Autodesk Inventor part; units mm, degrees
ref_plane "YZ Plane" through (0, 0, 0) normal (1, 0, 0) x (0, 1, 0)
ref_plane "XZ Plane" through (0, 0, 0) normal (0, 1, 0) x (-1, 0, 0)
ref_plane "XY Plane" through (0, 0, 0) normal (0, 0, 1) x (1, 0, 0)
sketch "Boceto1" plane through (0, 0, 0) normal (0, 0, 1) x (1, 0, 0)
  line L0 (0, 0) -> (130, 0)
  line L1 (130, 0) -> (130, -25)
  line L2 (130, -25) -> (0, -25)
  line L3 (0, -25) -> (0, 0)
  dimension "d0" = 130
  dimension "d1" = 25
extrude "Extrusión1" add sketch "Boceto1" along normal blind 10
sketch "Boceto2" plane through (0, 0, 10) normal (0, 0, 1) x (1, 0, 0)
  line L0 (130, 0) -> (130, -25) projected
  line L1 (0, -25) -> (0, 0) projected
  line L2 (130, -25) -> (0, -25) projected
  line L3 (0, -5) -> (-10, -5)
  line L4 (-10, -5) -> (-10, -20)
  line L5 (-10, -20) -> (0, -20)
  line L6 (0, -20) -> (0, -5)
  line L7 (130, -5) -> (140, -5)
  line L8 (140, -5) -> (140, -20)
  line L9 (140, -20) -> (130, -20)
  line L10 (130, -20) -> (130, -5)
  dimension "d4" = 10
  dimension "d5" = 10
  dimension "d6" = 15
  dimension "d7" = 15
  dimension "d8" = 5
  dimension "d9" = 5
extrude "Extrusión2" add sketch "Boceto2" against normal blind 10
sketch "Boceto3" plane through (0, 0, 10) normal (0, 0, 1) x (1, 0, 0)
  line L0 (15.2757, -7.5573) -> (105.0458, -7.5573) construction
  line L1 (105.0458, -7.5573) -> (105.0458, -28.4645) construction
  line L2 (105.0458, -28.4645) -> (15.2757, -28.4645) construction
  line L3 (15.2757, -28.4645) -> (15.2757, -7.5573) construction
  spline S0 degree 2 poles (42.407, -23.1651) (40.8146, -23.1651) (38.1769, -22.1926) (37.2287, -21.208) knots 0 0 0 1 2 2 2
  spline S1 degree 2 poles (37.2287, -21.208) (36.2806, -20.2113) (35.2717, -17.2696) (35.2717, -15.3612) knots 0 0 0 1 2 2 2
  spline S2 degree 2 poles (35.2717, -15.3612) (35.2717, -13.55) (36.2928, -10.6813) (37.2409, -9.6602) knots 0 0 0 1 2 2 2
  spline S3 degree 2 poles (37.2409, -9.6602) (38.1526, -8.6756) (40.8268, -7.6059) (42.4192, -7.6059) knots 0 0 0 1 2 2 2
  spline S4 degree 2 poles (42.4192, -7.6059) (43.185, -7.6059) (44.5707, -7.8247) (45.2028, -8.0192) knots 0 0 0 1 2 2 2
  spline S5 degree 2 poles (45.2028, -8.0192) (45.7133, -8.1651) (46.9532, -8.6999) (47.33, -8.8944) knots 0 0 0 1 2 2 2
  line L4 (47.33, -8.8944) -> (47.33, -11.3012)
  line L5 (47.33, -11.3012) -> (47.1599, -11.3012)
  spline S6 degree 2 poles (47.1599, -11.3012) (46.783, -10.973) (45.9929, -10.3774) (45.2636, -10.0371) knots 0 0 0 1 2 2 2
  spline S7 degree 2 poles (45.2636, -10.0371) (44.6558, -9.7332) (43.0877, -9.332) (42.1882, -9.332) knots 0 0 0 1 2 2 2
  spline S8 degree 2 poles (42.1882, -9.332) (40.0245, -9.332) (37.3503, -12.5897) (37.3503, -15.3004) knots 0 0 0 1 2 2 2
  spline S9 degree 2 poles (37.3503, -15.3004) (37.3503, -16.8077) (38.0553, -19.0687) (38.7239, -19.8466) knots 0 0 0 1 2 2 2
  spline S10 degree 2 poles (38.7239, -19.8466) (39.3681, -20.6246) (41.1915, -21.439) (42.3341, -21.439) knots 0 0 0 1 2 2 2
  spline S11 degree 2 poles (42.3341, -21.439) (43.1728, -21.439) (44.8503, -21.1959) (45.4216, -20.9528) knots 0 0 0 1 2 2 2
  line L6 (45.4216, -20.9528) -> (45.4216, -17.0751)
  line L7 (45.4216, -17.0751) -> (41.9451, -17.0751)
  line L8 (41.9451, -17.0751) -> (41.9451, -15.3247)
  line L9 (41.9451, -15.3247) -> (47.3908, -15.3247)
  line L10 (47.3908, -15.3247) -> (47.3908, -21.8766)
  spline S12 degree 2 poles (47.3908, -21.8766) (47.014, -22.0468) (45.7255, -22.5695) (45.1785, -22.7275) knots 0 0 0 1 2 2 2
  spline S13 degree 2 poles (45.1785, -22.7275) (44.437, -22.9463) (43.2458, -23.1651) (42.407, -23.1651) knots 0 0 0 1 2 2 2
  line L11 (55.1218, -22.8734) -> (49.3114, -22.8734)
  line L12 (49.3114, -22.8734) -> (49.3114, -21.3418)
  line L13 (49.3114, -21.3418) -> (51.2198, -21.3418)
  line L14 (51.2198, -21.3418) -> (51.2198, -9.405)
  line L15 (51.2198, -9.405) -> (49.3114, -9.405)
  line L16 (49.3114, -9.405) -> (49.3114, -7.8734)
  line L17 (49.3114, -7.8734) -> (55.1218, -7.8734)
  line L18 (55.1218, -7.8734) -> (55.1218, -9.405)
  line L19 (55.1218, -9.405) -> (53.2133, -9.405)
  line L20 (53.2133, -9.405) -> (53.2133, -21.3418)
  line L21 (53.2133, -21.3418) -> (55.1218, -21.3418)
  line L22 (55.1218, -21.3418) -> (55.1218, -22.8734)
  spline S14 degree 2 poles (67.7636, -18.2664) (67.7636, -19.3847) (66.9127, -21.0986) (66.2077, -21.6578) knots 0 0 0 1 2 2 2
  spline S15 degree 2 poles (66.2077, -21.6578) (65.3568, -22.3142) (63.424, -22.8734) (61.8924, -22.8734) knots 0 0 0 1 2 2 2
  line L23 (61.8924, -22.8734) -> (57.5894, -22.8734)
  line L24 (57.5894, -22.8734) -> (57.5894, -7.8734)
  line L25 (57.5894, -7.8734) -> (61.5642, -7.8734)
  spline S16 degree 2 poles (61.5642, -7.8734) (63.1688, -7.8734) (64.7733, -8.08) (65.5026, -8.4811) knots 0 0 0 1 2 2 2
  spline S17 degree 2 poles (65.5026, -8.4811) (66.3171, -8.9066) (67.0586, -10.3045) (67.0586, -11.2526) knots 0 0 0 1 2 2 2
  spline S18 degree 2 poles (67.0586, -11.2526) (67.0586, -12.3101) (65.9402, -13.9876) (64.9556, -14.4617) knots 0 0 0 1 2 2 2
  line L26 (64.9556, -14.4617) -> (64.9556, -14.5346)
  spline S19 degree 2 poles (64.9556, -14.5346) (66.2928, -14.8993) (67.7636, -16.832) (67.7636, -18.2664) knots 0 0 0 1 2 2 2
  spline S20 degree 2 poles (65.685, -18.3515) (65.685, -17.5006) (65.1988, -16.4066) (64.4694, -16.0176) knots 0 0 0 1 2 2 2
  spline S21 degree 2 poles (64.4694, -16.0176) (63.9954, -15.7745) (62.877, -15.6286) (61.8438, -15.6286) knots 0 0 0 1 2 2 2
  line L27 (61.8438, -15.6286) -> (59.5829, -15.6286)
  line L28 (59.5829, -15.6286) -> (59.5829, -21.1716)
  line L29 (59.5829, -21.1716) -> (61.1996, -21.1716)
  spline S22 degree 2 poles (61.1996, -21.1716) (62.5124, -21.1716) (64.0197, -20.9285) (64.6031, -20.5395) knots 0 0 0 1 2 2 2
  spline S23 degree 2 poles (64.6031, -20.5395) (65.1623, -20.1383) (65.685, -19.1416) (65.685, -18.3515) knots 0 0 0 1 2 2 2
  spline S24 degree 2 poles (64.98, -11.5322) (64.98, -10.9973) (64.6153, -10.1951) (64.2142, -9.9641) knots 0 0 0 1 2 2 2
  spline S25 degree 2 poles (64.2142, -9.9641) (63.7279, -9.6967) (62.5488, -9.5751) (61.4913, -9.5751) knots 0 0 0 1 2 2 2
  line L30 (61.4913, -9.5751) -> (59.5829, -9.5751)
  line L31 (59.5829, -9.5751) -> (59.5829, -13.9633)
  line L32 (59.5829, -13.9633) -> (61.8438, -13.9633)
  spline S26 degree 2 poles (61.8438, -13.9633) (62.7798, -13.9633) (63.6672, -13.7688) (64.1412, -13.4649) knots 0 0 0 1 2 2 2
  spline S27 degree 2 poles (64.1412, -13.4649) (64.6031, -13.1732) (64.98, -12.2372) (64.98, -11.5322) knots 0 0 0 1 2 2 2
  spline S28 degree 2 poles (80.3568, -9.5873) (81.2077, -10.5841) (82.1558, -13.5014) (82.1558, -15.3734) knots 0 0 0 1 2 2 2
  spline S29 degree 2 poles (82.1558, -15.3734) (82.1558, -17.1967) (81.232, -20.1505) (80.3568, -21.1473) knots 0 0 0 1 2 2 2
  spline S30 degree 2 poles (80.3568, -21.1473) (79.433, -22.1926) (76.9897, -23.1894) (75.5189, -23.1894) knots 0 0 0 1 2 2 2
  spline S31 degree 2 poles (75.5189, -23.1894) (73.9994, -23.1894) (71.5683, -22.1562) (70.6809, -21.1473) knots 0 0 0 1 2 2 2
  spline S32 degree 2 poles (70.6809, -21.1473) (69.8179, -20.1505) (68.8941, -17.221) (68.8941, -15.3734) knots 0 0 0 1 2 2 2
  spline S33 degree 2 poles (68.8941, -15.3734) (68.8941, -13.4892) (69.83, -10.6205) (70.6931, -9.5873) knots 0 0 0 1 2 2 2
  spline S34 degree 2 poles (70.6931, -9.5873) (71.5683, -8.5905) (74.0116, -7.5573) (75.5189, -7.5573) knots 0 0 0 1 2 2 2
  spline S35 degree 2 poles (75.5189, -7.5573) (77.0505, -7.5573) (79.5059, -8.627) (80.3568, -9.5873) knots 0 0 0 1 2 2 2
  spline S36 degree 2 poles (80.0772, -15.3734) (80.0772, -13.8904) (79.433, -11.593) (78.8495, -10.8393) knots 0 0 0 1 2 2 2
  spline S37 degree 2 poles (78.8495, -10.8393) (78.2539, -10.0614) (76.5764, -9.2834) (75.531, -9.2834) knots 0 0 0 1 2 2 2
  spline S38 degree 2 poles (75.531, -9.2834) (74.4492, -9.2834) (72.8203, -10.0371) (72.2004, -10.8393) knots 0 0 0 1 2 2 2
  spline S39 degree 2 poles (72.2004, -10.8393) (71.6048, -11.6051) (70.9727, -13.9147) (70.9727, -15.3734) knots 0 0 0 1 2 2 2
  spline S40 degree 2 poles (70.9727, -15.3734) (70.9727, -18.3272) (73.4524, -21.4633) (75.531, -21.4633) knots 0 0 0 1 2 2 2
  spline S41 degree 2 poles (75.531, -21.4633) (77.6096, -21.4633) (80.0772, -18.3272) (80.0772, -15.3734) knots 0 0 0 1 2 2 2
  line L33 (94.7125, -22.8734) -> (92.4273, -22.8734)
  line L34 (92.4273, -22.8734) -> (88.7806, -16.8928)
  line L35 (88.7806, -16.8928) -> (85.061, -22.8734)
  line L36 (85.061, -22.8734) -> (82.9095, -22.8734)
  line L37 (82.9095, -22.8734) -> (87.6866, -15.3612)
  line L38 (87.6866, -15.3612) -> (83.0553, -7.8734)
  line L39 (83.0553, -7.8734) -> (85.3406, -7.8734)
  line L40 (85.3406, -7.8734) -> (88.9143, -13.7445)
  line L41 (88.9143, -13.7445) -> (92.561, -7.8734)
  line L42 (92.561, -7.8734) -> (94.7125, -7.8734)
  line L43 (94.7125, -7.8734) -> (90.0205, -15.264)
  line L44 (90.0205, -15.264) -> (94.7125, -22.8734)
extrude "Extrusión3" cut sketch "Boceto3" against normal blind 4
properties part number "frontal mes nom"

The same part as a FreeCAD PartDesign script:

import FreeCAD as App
import Part
import Sketcher

doc = App.newDocument("Part")
body = doc.addObject("PartDesign::Body", "Body")

# Sketch on XY plane
sketch1 = doc.addObject("Sketcher::SketchObject", "Sketch")
body.addObject(sketch1)
sketch1.AttachmentSupport = (doc.XY_Plane, [""])
sketch1.MapMode = "FlatFace"
sketch1.addGeometry(Part.LineSegment(App.Vector(130, 0, 0), App.Vector(0, 0, 0)), False)
sketch1.addGeometry(Part.LineSegment(App.Vector(0, 0, 0), App.Vector(0, -25, 0)), False)
sketch1.addGeometry(Part.LineSegment(App.Vector(0, -25, 0), App.Vector(130, -25, 0)), False)
sketch1.addGeometry(Part.LineSegment(App.Vector(130, -25, 0), App.Vector(130, 0, 0)), False)
sketch1.addConstraint(Sketcher.Constraint("Coincident", 0, 2, 1, 1))
sketch1.addConstraint(Sketcher.Constraint("Coincident", 1, 2, 2, 1))
sketch1.addConstraint(Sketcher.Constraint("Coincident", 2, 2, 3, 1))
sketch1.addConstraint(Sketcher.Constraint("Coincident", 3, 2, 0, 1))
sketch1.addConstraint(Sketcher.Constraint("Horizontal", 0))
sketch1.addConstraint(Sketcher.Constraint("Vertical", 1))
sketch1.addConstraint(Sketcher.Constraint("Horizontal", 2))
sketch1.addConstraint(Sketcher.Constraint("Vertical", 3))
sketch1.addConstraint(Sketcher.Constraint("Coincident", 0, 2, -1, 1))
sketch1.addConstraint(Sketcher.Constraint("DistanceX", 0, 2, 0, 1, 130.0))
sketch1.addConstraint(Sketcher.Constraint("DistanceY", 1, 2, 1, 1, 25.0))
pad1 = doc.addObject("PartDesign::Pad", "Pad")
body.addObject(pad1)
pad1.Profile = sketch1
pad1.Length = 10

# Sketch on XY plane
sketch2 = doc.addObject("Sketcher::SketchObject", "Sketch001")
body.addObject(sketch2)
sketch2.AttachmentSupport = (doc.XY_Plane, [""])
sketch2.MapMode = "FlatFace"
sketch2.AttachmentOffset = App.Placement(App.Vector(0, 0, 10), App.Rotation())
sketch2.addGeometry(Part.LineSegment(App.Vector(140, -5, 0), App.Vector(130, -5, 0)), False)
sketch2.addGeometry(Part.LineSegment(App.Vector(130, -5, 0), App.Vector(130, -20, 0)), False)
sketch2.addGeometry(Part.LineSegment(App.Vector(130, -20, 0), App.Vector(140, -20, 0)), False)
sketch2.addGeometry(Part.LineSegment(App.Vector(140, -20, 0), App.Vector(140, -5, 0)), False)
sketch2.addGeometry(Part.LineSegment(App.Vector(-10, -20, 0), App.Vector(0, -20, 0)), False)
sketch2.addGeometry(Part.LineSegment(App.Vector(0, -20, 0), App.Vector(0, -5, 0)), False)
sketch2.addGeometry(Part.LineSegment(App.Vector(0, -5, 0), App.Vector(-10, -5, 0)), False)
sketch2.addGeometry(Part.LineSegment(App.Vector(-10, -5, 0), App.Vector(-10, -20, 0)), False)
sketch2.addConstraint(Sketcher.Constraint("Coincident", 0, 2, 1, 1))
sketch2.addConstraint(Sketcher.Constraint("Coincident", 1, 2, 2, 1))
sketch2.addConstraint(Sketcher.Constraint("Coincident", 2, 2, 3, 1))
sketch2.addConstraint(Sketcher.Constraint("Coincident", 3, 2, 0, 1))
sketch2.addConstraint(Sketcher.Constraint("Coincident", 4, 2, 5, 1))
sketch2.addConstraint(Sketcher.Constraint("Coincident", 5, 2, 6, 1))
sketch2.addConstraint(Sketcher.Constraint("Coincident", 6, 2, 7, 1))
sketch2.addConstraint(Sketcher.Constraint("Coincident", 7, 2, 4, 1))
sketch2.addConstraint(Sketcher.Constraint("Horizontal", 0))
sketch2.addConstraint(Sketcher.Constraint("Vertical", 1))
sketch2.addConstraint(Sketcher.Constraint("Horizontal", 2))
sketch2.addConstraint(Sketcher.Constraint("Vertical", 3))
sketch2.addConstraint(Sketcher.Constraint("Horizontal", 4))
sketch2.addConstraint(Sketcher.Constraint("Vertical", 5))
sketch2.addConstraint(Sketcher.Constraint("Horizontal", 6))
sketch2.addConstraint(Sketcher.Constraint("Vertical", 7))
sketch2.addConstraint(Sketcher.Constraint("PointOnObject", 4, 2, -2))
sketch2.addConstraint(Sketcher.Constraint("Horizontal", 2, 2, 4, 2))
sketch2.addConstraint(Sketcher.Constraint("Horizontal", 3, 2, 5, 2))
sketch2.addConstraint(Sketcher.Constraint("Equal", 2, 4))
sketch2.addConstraint(Sketcher.Constraint("DistanceX", 0, 2, 0, 1, 10.0))
sketch2.addConstraint(Sketcher.Constraint("DistanceY", 1, 2, 1, 1, 15.0))
sketch2.addConstraint(Sketcher.Constraint("DistanceY", 0, 2, -1, 1, 5.0))
sketch2.addConstraint(Sketcher.Constraint("DistanceX", -1, 1, 0, 2, 130.0))
pad2 = doc.addObject("PartDesign::Pad", "Pad001")
body.addObject(pad2)
pad2.Profile = sketch2
pad2.Length = 10
pad2.Reversed = True

# Sketch on XY plane
sketch3 = doc.addObject("Sketcher::SketchObject", "Sketch002")
body.addObject(sketch3)
sketch3.AttachmentSupport = (doc.XY_Plane, [""])
sketch3.MapMode = "FlatFace"
sketch3.AttachmentOffset = App.Placement(App.Vector(0, 0, 10), App.Rotation())
sketch3.addGeometry(Part.BSplineCurve([App.Vector(42.407, -23.1651, 0), App.Vector(40.8146, -23.1651, 0), App.Vector(38.1769, -22.1926, 0), App.Vector(37.2287, -21.208, 0)], [3, 1, 3], [0, 1, 2], False, 2, [1, 1, 1, 1], False), False)
sketch3.addGeometry(Part.BSplineCurve([App.Vector(45.1785, -22.7275, 0), App.Vector(44.437, -22.9463, 0), App.Vector(43.2458, -23.1651, 0), App.Vector(42.407, -23.1651, 0)], [3, 1, 3], [0, 1, 2], False, 2, [1, 1, 1, 1], False), False)
sketch3.addGeometry(Part.BSplineCurve([App.Vector(47.3908, -21.8766, 0), App.Vector(47.014, -22.0468, 0), App.Vector(45.7255, -22.5695, 0), App.Vector(45.1785, -22.7275, 0)], [3, 1, 3], [0, 1, 2], False, 2, [1, 1, 1, 1], False), False)
sketch3.addGeometry(Part.LineSegment(App.Vector(47.3908, -21.8766, 0), App.Vector(47.3908, -15.3247, 0)), False)
sketch3.addGeometry(Part.LineSegment(App.Vector(47.3908, -15.3247, 0), App.Vector(41.9451, -15.3247, 0)), False)
sketch3.addGeometry(Part.LineSegment(App.Vector(41.9451, -15.3247, 0), App.Vector(41.9451, -17.0751, 0)), False)
sketch3.addGeometry(Part.LineSegment(App.Vector(41.9451, -17.0751, 0), App.Vector(45.4216, -17.0751, 0)), False)
sketch3.addGeometry(Part.LineSegment(App.Vector(45.4216, -17.0751, 0), App.Vector(45.4216, -20.9528, 0)), False)
sketch3.addGeometry(Part.BSplineCurve([App.Vector(42.3341, -21.439, 0), App.Vector(43.1728, -21.439, 0), App.Vector(44.8503, -21.1959, 0), App.Vector(45.4216, -20.9528, 0)], [3, 1, 3], [0, 1, 2], False, 2, [1, 1, 1, 1], False), False)
sketch3.addGeometry(Part.BSplineCurve([App.Vector(38.7239, -19.8466, 0), App.Vector(39.3681, -20.6246, 0), App.Vector(41.1915, -21.439, 0), App.Vector(42.3341, -21.439, 0)], [3, 1, 3], [0, 1, 2], False, 2, [1, 1, 1, 1], False), False)
sketch3.addGeometry(Part.BSplineCurve([App.Vector(37.3503, -15.3004, 0), App.Vector(37.3503, -16.8077, 0), App.Vector(38.0553, -19.0687, 0), App.Vector(38.7239, -19.8466, 0)], [3, 1, 3], [0, 1, 2], False, 2, [1, 1, 1, 1], False), False)
sketch3.addGeometry(Part.BSplineCurve([App.Vector(42.1882, -9.332, 0), App.Vector(40.0245, -9.332, 0), App.Vector(37.3503, -12.5897, 0), App.Vector(37.3503, -15.3004, 0)], [3, 1, 3], [0, 1, 2], False, 2, [1, 1, 1, 1], False), False)
sketch3.addGeometry(Part.BSplineCurve([App.Vector(45.2636, -10.0371, 0), App.Vector(44.6558, -9.7332, 0), App.Vector(43.0877, -9.332, 0), App.Vector(42.1882, -9.332, 0)], [3, 1, 3], [0, 1, 2], False, 2, [1, 1, 1, 1], False), False)
sketch3.addGeometry(Part.BSplineCurve([App.Vector(47.1599, -11.3012, 0), App.Vector(46.783, -10.973, 0), App.Vector(45.9929, -10.3774, 0), App.Vector(45.2636, -10.0371, 0)], [3, 1, 3], [0, 1, 2], False, 2, [1, 1, 1, 1], False), False)
sketch3.addGeometry(Part.LineSegment(App.Vector(47.1599, -11.3012, 0), App.Vector(47.33, -11.3012, 0)), False)
sketch3.addGeometry(Part.LineSegment(App.Vector(47.33, -11.3012, 0), App.Vector(47.33, -8.8944, 0)), False)
sketch3.addGeometry(Part.BSplineCurve([App.Vector(45.2028, -8.0192, 0), App.Vector(45.7133, -8.1651, 0), App.Vector(46.9532, -8.6999, 0), App.Vector(47.33, -8.8944, 0)], [3, 1, 3], [0, 1, 2], False, 2, [1, 1, 1, 1], False), False)
sketch3.addGeometry(Part.BSplineCurve([App.Vector(42.4192, -7.6059, 0), App.Vector(43.185, -7.6059, 0), App.Vector(44.5707, -7.8247, 0), App.Vector(45.2028, -8.0192, 0)], [3, 1, 3], [0, 1, 2], False, 2, [1, 1, 1, 1], False), False)
sketch3.addGeometry(Part.BSplineCurve([App.Vector(37.2409, -9.6602, 0), App.Vector(38.1526, -8.6756, 0), App.Vector(40.8268, -7.6059, 0), App.Vector(42.4192, -7.6059, 0)], [3, 1, 3], [0, 1, 2], False, 2, [1, 1, 1, 1], False), False)
sketch3.addGeometry(Part.BSplineCurve([App.Vector(35.2717, -15.3612, 0), App.Vector(35.2717, -13.55, 0), App.Vector(36.2928, -10.6813, 0), App.Vector(37.2409, -9.6602, 0)], [3, 1, 3], [0, 1, 2], False, 2, [1, 1, 1, 1], False), False)
sketch3.addGeometry(Part.BSplineCurve([App.Vector(37.2287, -21.208, 0), App.Vector(36.2806, -20.2113, 0), App.Vector(35.2717, -17.2696, 0), App.Vector(35.2717, -15.3612, 0)], [3, 1, 3], [0, 1, 2], False, 2, [1, 1, 1, 1], False), False)
sketch3.addGeometry(Part.LineSegment(App.Vector(49.3114, -22.8734, 0), App.Vector(55.1218, -22.8734, 0)), False)
sketch3.addGeometry(Part.LineSegment(App.Vector(55.1218, -22.8734, 0), App.Vector(55.1218, -21.3418, 0)), False)
sketch3.addGeometry(Part.LineSegment(App.Vector(55.1218, -21.3418, 0), App.Vector(53.2133, -21.3418, 0)), False)
sketch3.addGeometry(Part.LineSegment(App.Vector(53.2133, -21.3418, 0), App.Vector(53.2133, -9.405, 0)), False)
sketch3.addGeometry(Part.LineSegment(App.Vector(53.2133, -9.405, 0), App.Vector(55.1218, -9.405, 0)), False)
sketch3.addGeometry(Part.LineSegment(App.Vector(55.1218, -9.405, 0), App.Vector(55.1218, -7.8734, 0)), False)
sketch3.addGeometry(Part.LineSegment(App.Vector(55.1218, -7.8734, 0), App.Vector(49.3114, -7.8734, 0)), False)
sketch3.addGeometry(Part.LineSegment(App.Vector(49.3114, -7.8734, 0), App.Vector(49.3114, -9.405, 0)), False)
sketch3.addGeometry(Part.LineSegment(App.Vector(49.3114, -9.405, 0), App.Vector(51.2198, -9.405, 0)), False)
sketch3.addGeometry(Part.LineSegment(App.Vector(51.2198, -9.405, 0), App.Vector(51.2198, -21.3418, 0)), False)
sketch3.addGeometry(Part.LineSegment(App.Vector(51.2198, -21.3418, 0), App.Vector(49.3114, -21.3418, 0)), False)
sketch3.addGeometry(Part.LineSegment(App.Vector(49.3114, -21.3418, 0), App.Vector(49.3114, -22.8734, 0)), False)
sketch3.addGeometry(Part.BSplineCurve([App.Vector(67.7636, -18.2664, 0), App.Vector(67.7636, -19.3847, 0), App.Vector(66.9127, -21.0986, 0), App.Vector(66.2077, -21.6578, 0)], [3, 1, 3], [0, 1, 2], False, 2, [1, 1, 1, 1], False), False)
sketch3.addGeometry(Part.BSplineCurve([App.Vector(64.9556, -14.5346, 0), App.Vector(66.2928, -14.8993, 0), App.Vector(67.7636, -16.832, 0), App.Vector(67.7636, -18.2664, 0)], [3, 1, 3], [0, 1, 2], False, 2, [1, 1, 1, 1], False), False)
sketch3.addGeometry(Part.LineSegment(App.Vector(64.9556, -14.5346, 0), App.Vector(64.9556, -14.4617, 0)), False)
sketch3.addGeometry(Part.BSplineCurve([App.Vector(67.0586, -11.2526, 0), App.Vector(67.0586, -12.3101, 0), App.Vector(65.9402, -13.9876, 0), App.Vector(64.9556, -14.4617, 0)], [3, 1, 3], [0, 1, 2], False, 2, [1, 1, 1, 1], False), False)
sketch3.addGeometry(Part.BSplineCurve([App.Vector(65.5026, -8.4811, 0), App.Vector(66.3171, -8.9066, 0), App.Vector(67.0586, -10.3045, 0), App.Vector(67.0586, -11.2526, 0)], [3, 1, 3], [0, 1, 2], False, 2, [1, 1, 1, 1], False), False)
sketch3.addGeometry(Part.BSplineCurve([App.Vector(61.5642, -7.8734, 0), App.Vector(63.1688, -7.8734, 0), App.Vector(64.7733, -8.08, 0), App.Vector(65.5026, -8.4811, 0)], [3, 1, 3], [0, 1, 2], False, 2, [1, 1, 1, 1], False), False)
sketch3.addGeometry(Part.LineSegment(App.Vector(61.5642, -7.8734, 0), App.Vector(57.5894, -7.8734, 0)), False)
sketch3.addGeometry(Part.LineSegment(App.Vector(57.5894, -7.8734, 0), App.Vector(57.5894, -22.8734, 0)), False)
sketch3.addGeometry(Part.LineSegment(App.Vector(57.5894, -22.8734, 0), App.Vector(61.8924, -22.8734, 0)), False)
sketch3.addGeometry(Part.BSplineCurve([App.Vector(66.2077, -21.6578, 0), App.Vector(65.3568, -22.3142, 0), App.Vector(63.424, -22.8734, 0), App.Vector(61.8924, -22.8734, 0)], [3, 1, 3], [0, 1, 2], False, 2, [1, 1, 1, 1], False), False)
sketch3.addGeometry(Part.BSplineCurve([App.Vector(65.685, -18.3515, 0), App.Vector(65.685, -17.5006, 0), App.Vector(65.1988, -16.4066, 0), App.Vector(64.4694, -16.0176, 0)], [3, 1, 3], [0, 1, 2], False, 2, [1, 1, 1, 1], False), False)
sketch3.addGeometry(Part.BSplineCurve([App.Vector(64.6031, -20.5395, 0), App.Vector(65.1623, -20.1383, 0), App.Vector(65.685, -19.1416, 0), App.Vector(65.685, -18.3515, 0)], [3, 1, 3], [0, 1, 2], False, 2, [1, 1, 1, 1], False), False)
sketch3.addGeometry(Part.BSplineCurve([App.Vector(61.1996, -21.1716, 0), App.Vector(62.5124, -21.1716, 0), App.Vector(64.0197, -20.9285, 0), App.Vector(64.6031, -20.5395, 0)], [3, 1, 3], [0, 1, 2], False, 2, [1, 1, 1, 1], False), False)
sketch3.addGeometry(Part.LineSegment(App.Vector(61.1996, -21.1716, 0), App.Vector(59.5829, -21.1716, 0)), False)
sketch3.addGeometry(Part.LineSegment(App.Vector(59.5829, -21.1716, 0), App.Vector(59.5829, -15.6286, 0)), False)
sketch3.addGeometry(Part.LineSegment(App.Vector(59.5829, -15.6286, 0), App.Vector(61.8438, -15.6286, 0)), False)
sketch3.addGeometry(Part.BSplineCurve([App.Vector(64.4694, -16.0176, 0), App.Vector(63.9954, -15.7745, 0), App.Vector(62.877, -15.6286, 0), App.Vector(61.8438, -15.6286, 0)], [3, 1, 3], [0, 1, 2], False, 2, [1, 1, 1, 1], False), False)
sketch3.addGeometry(Part.BSplineCurve([App.Vector(64.98, -11.5322, 0), App.Vector(64.98, -10.9973, 0), App.Vector(64.6153, -10.1951, 0), App.Vector(64.2142, -9.9641, 0)], [3, 1, 3], [0, 1, 2], False, 2, [1, 1, 1, 1], False), False)
sketch3.addGeometry(Part.BSplineCurve([App.Vector(64.1412, -13.4649, 0), App.Vector(64.6031, -13.1732, 0), App.Vector(64.98, -12.2372, 0), App.Vector(64.98, -11.5322, 0)], [3, 1, 3], [0, 1, 2], False, 2, [1, 1, 1, 1], False), False)
sketch3.addGeometry(Part.BSplineCurve([App.Vector(61.8438, -13.9633, 0), App.Vector(62.7798, -13.9633, 0), App.Vector(63.6672, -13.7688, 0), App.Vector(64.1412, -13.4649, 0)], [3, 1, 3], [0, 1, 2], False, 2, [1, 1, 1, 1], False), False)
sketch3.addGeometry(Part.LineSegment(App.Vector(61.8438, -13.9633, 0), App.Vector(59.5829, -13.9633, 0)), False)
sketch3.addGeometry(Part.LineSegment(App.Vector(59.5829, -13.9633, 0), App.Vector(59.5829, -9.5751, 0)), False)
sketch3.addGeometry(Part.LineSegment(App.Vector(59.5829, -9.5751, 0), App.Vector(61.4913, -9.5751, 0)), False)
sketch3.addGeometry(Part.BSplineCurve([App.Vector(64.2142, -9.9641, 0), App.Vector(63.7279, -9.6967, 0), App.Vector(62.5488, -9.5751, 0), App.Vector(61.4913, -9.5751, 0)], [3, 1, 3], [0, 1, 2], False, 2, [1, 1, 1, 1], False), False)
sketch3.addGeometry(Part.BSplineCurve([App.Vector(80.3568, -9.5873, 0), App.Vector(81.2077, -10.5841, 0), App.Vector(82.1558, -13.5014, 0), App.Vector(82.1558, -15.3734, 0)], [3, 1, 3], [0, 1, 2], False, 2, [1, 1, 1, 1], False), False)
sketch3.addGeometry(Part.BSplineCurve([App.Vector(75.5189, -7.5573, 0), App.Vector(77.0505, -7.5573, 0), App.Vector(79.5059, -8.627, 0), App.Vector(80.3568, -9.5873, 0)], [3, 1, 3], [0, 1, 2], False, 2, [1, 1, 1, 1], False), False)
sketch3.addGeometry(Part.BSplineCurve([App.Vector(70.6931, -9.5873, 0), App.Vector(71.5683, -8.5905, 0), App.Vector(74.0116, -7.5573, 0), App.Vector(75.5189, -7.5573, 0)], [3, 1, 3], [0, 1, 2], False, 2, [1, 1, 1, 1], False), False)
sketch3.addGeometry(Part.BSplineCurve([App.Vector(68.8941, -15.3734, 0), App.Vector(68.8941, -13.4892, 0), App.Vector(69.83, -10.6205, 0), App.Vector(70.6931, -9.5873, 0)], [3, 1, 3], [0, 1, 2], False, 2, [1, 1, 1, 1], False), False)
sketch3.addGeometry(Part.BSplineCurve([App.Vector(70.6809, -21.1473, 0), App.Vector(69.8179, -20.1505, 0), App.Vector(68.8941, -17.221, 0), App.Vector(68.8941, -15.3734, 0)], [3, 1, 3], [0, 1, 2], False, 2, [1, 1, 1, 1], False), False)
sketch3.addGeometry(Part.BSplineCurve([App.Vector(75.5189, -23.1894, 0), App.Vector(73.9994, -23.1894, 0), App.Vector(71.5683, -22.1562, 0), App.Vector(70.6809, -21.1473, 0)], [3, 1, 3], [0, 1, 2], False, 2, [1, 1, 1, 1], False), False)
sketch3.addGeometry(Part.BSplineCurve([App.Vector(80.3568, -21.1473, 0), App.Vector(79.433, -22.1926, 0), App.Vector(76.9897, -23.1894, 0), App.Vector(75.5189, -23.1894, 0)], [3, 1, 3], [0, 1, 2], False, 2, [1, 1, 1, 1], False), False)
sketch3.addGeometry(Part.BSplineCurve([App.Vector(82.1558, -15.3734, 0), App.Vector(82.1558, -17.1967, 0), App.Vector(81.232, -20.1505, 0), App.Vector(80.3568, -21.1473, 0)], [3, 1, 3], [0, 1, 2], False, 2, [1, 1, 1, 1], False), False)
sketch3.addGeometry(Part.BSplineCurve([App.Vector(80.0772, -15.3734, 0), App.Vector(80.0772, -13.8904, 0), App.Vector(79.433, -11.593, 0), App.Vector(78.8495, -10.8393, 0)], [3, 1, 3], [0, 1, 2], False, 2, [1, 1, 1, 1], False), False)
sketch3.addGeometry(Part.BSplineCurve([App.Vector(75.531, -21.4633, 0), App.Vector(77.6096, -21.4633, 0), App.Vector(80.0772, -18.3272, 0), App.Vector(80.0772, -15.3734, 0)], [3, 1, 3], [0, 1, 2], False, 2, [1, 1, 1, 1], False), False)
sketch3.addGeometry(Part.BSplineCurve([App.Vector(70.9727, -15.3734, 0), App.Vector(70.9727, -18.3272, 0), App.Vector(73.4524, -21.4633, 0), App.Vector(75.531, -21.4633, 0)], [3, 1, 3], [0, 1, 2], False, 2, [1, 1, 1, 1], False), False)
sketch3.addGeometry(Part.BSplineCurve([App.Vector(72.2004, -10.8393, 0), App.Vector(71.6048, -11.6051, 0), App.Vector(70.9727, -13.9147, 0), App.Vector(70.9727, -15.3734, 0)], [3, 1, 3], [0, 1, 2], False, 2, [1, 1, 1, 1], False), False)
sketch3.addGeometry(Part.BSplineCurve([App.Vector(75.531, -9.2834, 0), App.Vector(74.4492, -9.2834, 0), App.Vector(72.8203, -10.0371, 0), App.Vector(72.2004, -10.8393, 0)], [3, 1, 3], [0, 1, 2], False, 2, [1, 1, 1, 1], False), False)
sketch3.addGeometry(Part.BSplineCurve([App.Vector(78.8495, -10.8393, 0), App.Vector(78.2539, -10.0614, 0), App.Vector(76.5764, -9.2834, 0), App.Vector(75.531, -9.2834, 0)], [3, 1, 3], [0, 1, 2], False, 2, [1, 1, 1, 1], False), False)
sketch3.addGeometry(Part.LineSegment(App.Vector(92.4273, -22.8734, 0), App.Vector(94.7125, -22.8734, 0)), False)
sketch3.addGeometry(Part.LineSegment(App.Vector(94.7125, -22.8734, 0), App.Vector(90.0205, -15.264, 0)), False)
sketch3.addGeometry(Part.LineSegment(App.Vector(90.0205, -15.264, 0), App.Vector(94.7125, -7.8734, 0)), False)
sketch3.addGeometry(Part.LineSegment(App.Vector(94.7125, -7.8734, 0), App.Vector(92.561, -7.8734, 0)), False)
sketch3.addGeometry(Part.LineSegment(App.Vector(92.561, -7.8734, 0), App.Vector(88.9143, -13.7445, 0)), False)
sketch3.addGeometry(Part.LineSegment(App.Vector(88.9143, -13.7445, 0), App.Vector(85.3406, -7.8734, 0)), False)
sketch3.addGeometry(Part.LineSegment(App.Vector(85.3406, -7.8734, 0), App.Vector(83.0553, -7.8734, 0)), False)
sketch3.addGeometry(Part.LineSegment(App.Vector(83.0553, -7.8734, 0), App.Vector(87.6866, -15.3612, 0)), False)
sketch3.addGeometry(Part.LineSegment(App.Vector(87.6866, -15.3612, 0), App.Vector(82.9095, -22.8734, 0)), False)
sketch3.addGeometry(Part.LineSegment(App.Vector(82.9095, -22.8734, 0), App.Vector(85.061, -22.8734, 0)), False)
sketch3.addGeometry(Part.LineSegment(App.Vector(85.061, -22.8734, 0), App.Vector(88.7806, -16.8928, 0)), False)
sketch3.addGeometry(Part.LineSegment(App.Vector(88.7806, -16.8928, 0), App.Vector(92.4273, -22.8734, 0)), False)
sketch3.addConstraint(Sketcher.Constraint("Block", 0))
sketch3.addConstraint(Sketcher.Constraint("Block", 1))
sketch3.addConstraint(Sketcher.Constraint("Block", 2))
sketch3.addConstraint(Sketcher.Constraint("Block", 8))
sketch3.addConstraint(Sketcher.Constraint("Block", 9))
sketch3.addConstraint(Sketcher.Constraint("Block", 10))
sketch3.addConstraint(Sketcher.Constraint("Block", 11))
sketch3.addConstraint(Sketcher.Constraint("Block", 12))
sketch3.addConstraint(Sketcher.Constraint("Block", 13))
sketch3.addConstraint(Sketcher.Constraint("Block", 16))
sketch3.addConstraint(Sketcher.Constraint("Block", 17))
sketch3.addConstraint(Sketcher.Constraint("Block", 18))
sketch3.addConstraint(Sketcher.Constraint("Block", 19))
sketch3.addConstraint(Sketcher.Constraint("Block", 20))
sketch3.addConstraint(Sketcher.Constraint("Block", 33))
sketch3.addConstraint(Sketcher.Constraint("Block", 34))
sketch3.addConstraint(Sketcher.Constraint("Block", 36))
sketch3.addConstraint(Sketcher.Constraint("Block", 37))
sketch3.addConstraint(Sketcher.Constraint("Block", 38))
sketch3.addConstraint(Sketcher.Constraint("Block", 42))
sketch3.addConstraint(Sketcher.Constraint("Block", 43))
sketch3.addConstraint(Sketcher.Constraint("Block", 44))
sketch3.addConstraint(Sketcher.Constraint("Block", 45))
sketch3.addConstraint(Sketcher.Constraint("Block", 49))
sketch3.addConstraint(Sketcher.Constraint("Block", 50))
sketch3.addConstraint(Sketcher.Constraint("Block", 51))
sketch3.addConstraint(Sketcher.Constraint("Block", 52))
sketch3.addConstraint(Sketcher.Constraint("Block", 56))
sketch3.addConstraint(Sketcher.Constraint("Block", 57))
sketch3.addConstraint(Sketcher.Constraint("Block", 58))
sketch3.addConstraint(Sketcher.Constraint("Block", 59))
sketch3.addConstraint(Sketcher.Constraint("Block", 60))
sketch3.addConstraint(Sketcher.Constraint("Block", 61))
sketch3.addConstraint(Sketcher.Constraint("Block", 62))
sketch3.addConstraint(Sketcher.Constraint("Block", 63))
sketch3.addConstraint(Sketcher.Constraint("Block", 64))
sketch3.addConstraint(Sketcher.Constraint("Block", 65))
sketch3.addConstraint(Sketcher.Constraint("Block", 66))
sketch3.addConstraint(Sketcher.Constraint("Block", 67))
sketch3.addConstraint(Sketcher.Constraint("Block", 68))
sketch3.addConstraint(Sketcher.Constraint("Block", 69))
sketch3.addConstraint(Sketcher.Constraint("Block", 70))
sketch3.addConstraint(Sketcher.Constraint("Coincident", 2, 1, 3, 1))
sketch3.addConstraint(Sketcher.Constraint("Coincident", 3, 2, 4, 1))
sketch3.addConstraint(Sketcher.Constraint("Coincident", 4, 2, 5, 1))
sketch3.addConstraint(Sketcher.Constraint("Coincident", 5, 2, 6, 1))
sketch3.addConstraint(Sketcher.Constraint("Coincident", 6, 2, 7, 1))
sketch3.addConstraint(Sketcher.Constraint("Coincident", 7, 2, 8, 2))
sketch3.addConstraint(Sketcher.Constraint("Coincident", 13, 1, 14, 1))
sketch3.addConstraint(Sketcher.Constraint("Coincident", 14, 2, 15, 1))
sketch3.addConstraint(Sketcher.Constraint("Coincident", 15, 2, 16, 2))
sketch3.addConstraint(Sketcher.Constraint("Coincident", 21, 2, 22, 1))
sketch3.addConstraint(Sketcher.Constraint("Coincident", 22, 2, 23, 1))
sketch3.addConstraint(Sketcher.Constraint("Coincident", 23, 2, 24, 1))
sketch3.addConstraint(Sketcher.Constraint("Coincident", 24, 2, 25, 1))
sketch3.addConstraint(Sketcher.Constraint("Coincident", 25, 2, 26, 1))
sketch3.addConstraint(Sketcher.Constraint("Coincident", 26, 2, 27, 1))
sketch3.addConstraint(Sketcher.Constraint("Coincident", 27, 2, 28, 1))
sketch3.addConstraint(Sketcher.Constraint("Coincident", 28, 2, 29, 1))
sketch3.addConstraint(Sketcher.Constraint("Coincident", 29, 2, 30, 1))
sketch3.addConstraint(Sketcher.Constraint("Coincident", 30, 2, 31, 1))
sketch3.addConstraint(Sketcher.Constraint("Coincident", 31, 2, 32, 1))
sketch3.addConstraint(Sketcher.Constraint("Coincident", 32, 2, 21, 1))
sketch3.addConstraint(Sketcher.Constraint("Coincident", 34, 1, 35, 1))
sketch3.addConstraint(Sketcher.Constraint("Coincident", 35, 2, 36, 2))
sketch3.addConstraint(Sketcher.Constraint("Coincident", 38, 1, 39, 1))
sketch3.addConstraint(Sketcher.Constraint("Coincident", 39, 2, 40, 1))
sketch3.addConstraint(Sketcher.Constraint("Coincident", 40, 2, 41, 1))
sketch3.addConstraint(Sketcher.Constraint("Coincident", 41, 2, 42, 2))
sketch3.addConstraint(Sketcher.Constraint("Coincident", 45, 1, 46, 1))
sketch3.addConstraint(Sketcher.Constraint("Coincident", 46, 2, 47, 1))
sketch3.addConstraint(Sketcher.Constraint("Coincident", 47, 2, 48, 1))
sketch3.addConstraint(Sketcher.Constraint("Coincident", 48, 2, 49, 2))
sketch3.addConstraint(Sketcher.Constraint("Coincident", 52, 1, 53, 1))
sketch3.addConstraint(Sketcher.Constraint("Coincident", 53, 2, 54, 1))
sketch3.addConstraint(Sketcher.Constraint("Coincident", 54, 2, 55, 1))
sketch3.addConstraint(Sketcher.Constraint("Coincident", 55, 2, 56, 2))
sketch3.addConstraint(Sketcher.Constraint("Coincident", 71, 2, 72, 1))
sketch3.addConstraint(Sketcher.Constraint("Coincident", 72, 2, 73, 1))
sketch3.addConstraint(Sketcher.Constraint("Coincident", 73, 2, 74, 1))
sketch3.addConstraint(Sketcher.Constraint("Coincident", 74, 2, 75, 1))
sketch3.addConstraint(Sketcher.Constraint("Coincident", 75, 2, 76, 1))
sketch3.addConstraint(Sketcher.Constraint("Coincident", 76, 2, 77, 1))
sketch3.addConstraint(Sketcher.Constraint("Coincident", 77, 2, 78, 1))
sketch3.addConstraint(Sketcher.Constraint("Coincident", 78, 2, 79, 1))
sketch3.addConstraint(Sketcher.Constraint("Coincident", 79, 2, 80, 1))
sketch3.addConstraint(Sketcher.Constraint("Coincident", 80, 2, 81, 1))
sketch3.addConstraint(Sketcher.Constraint("Coincident", 81, 2, 82, 1))
sketch3.addConstraint(Sketcher.Constraint("Coincident", 82, 2, 71, 1))
sketch3.addConstraint(Sketcher.Constraint("Vertical", 3))
sketch3.addConstraint(Sketcher.Constraint("Horizontal", 4))
sketch3.addConstraint(Sketcher.Constraint("Vertical", 5))
sketch3.addConstraint(Sketcher.Constraint("Horizontal", 6))
sketch3.addConstraint(Sketcher.Constraint("Vertical", 7))
sketch3.addConstraint(Sketcher.Constraint("Horizontal", 14))
sketch3.addConstraint(Sketcher.Constraint("Vertical", 15))
sketch3.addConstraint(Sketcher.Constraint("Horizontal", 21))
sketch3.addConstraint(Sketcher.Constraint("Vertical", 22))
sketch3.addConstraint(Sketcher.Constraint("Horizontal", 23))
sketch3.addConstraint(Sketcher.Constraint("Vertical", 24))
sketch3.addConstraint(Sketcher.Constraint("Horizontal", 25))
sketch3.addConstraint(Sketcher.Constraint("Vertical", 26))
sketch3.addConstraint(Sketcher.Constraint("Horizontal", 27))
sketch3.addConstraint(Sketcher.Constraint("Vertical", 28))
sketch3.addConstraint(Sketcher.Constraint("Horizontal", 29))
sketch3.addConstraint(Sketcher.Constraint("Vertical", 30))
sketch3.addConstraint(Sketcher.Constraint("Horizontal", 31))
sketch3.addConstraint(Sketcher.Constraint("Vertical", 32))
sketch3.addConstraint(Sketcher.Constraint("Horizontal", 39))
sketch3.addConstraint(Sketcher.Constraint("Vertical", 40))
sketch3.addConstraint(Sketcher.Constraint("Horizontal", 41))
sketch3.addConstraint(Sketcher.Constraint("Horizontal", 46))
sketch3.addConstraint(Sketcher.Constraint("Vertical", 47))
sketch3.addConstraint(Sketcher.Constraint("Horizontal", 48))
sketch3.addConstraint(Sketcher.Constraint("Horizontal", 53))
sketch3.addConstraint(Sketcher.Constraint("Vertical", 54))
sketch3.addConstraint(Sketcher.Constraint("Horizontal", 55))
sketch3.addConstraint(Sketcher.Constraint("Horizontal", 71))
sketch3.addConstraint(Sketcher.Constraint("Horizontal", 74))
sketch3.addConstraint(Sketcher.Constraint("Horizontal", 77))
sketch3.addConstraint(Sketcher.Constraint("Horizontal", 80))
sketch3.addConstraint(Sketcher.Constraint("DistanceY", 71, 2, 73, 2, 15.0))
sketch3.addConstraint(Sketcher.Constraint("DistanceY", 71, 2, 76, 2, 15.0))
sketch3.addConstraint(Sketcher.Constraint("DistanceY", 79, 2, 77, 2, 15.0))
sketch3.addConstraint(Sketcher.Constraint("DistanceX", 41, 1, 41, 2, 4.303))
sketch3.addConstraint(Sketcher.Constraint("DistanceX", 48, 1, 48, 2, 2.261))
sketch3.addConstraint(Sketcher.Constraint("DistanceX", 53, 2, 53, 1, 2.261))
sketch3.addConstraint(Sketcher.Constraint("DistanceY", 3, 1, 3, 2, 6.552))
sketch3.addConstraint(Sketcher.Constraint("DistanceY", 6, 2, 24, 2, 7.67))
sketch3.addConstraint(Sketcher.Constraint("DistanceY", 22, 2, 35, 2, 6.88))
sketch3.addConstraint(Sketcher.Constraint("DistanceY", 54, 2, 25, 2, 0.17))
sketch3.addConstraint(Sketcher.Constraint("DistanceX", 41, 2, 71, 2, 32.82))
sketch3.addConstraint(Sketcher.Constraint("DistanceX", 76, 2, 72, 2, 4.68))
sketch3.addConstraint(Sketcher.Constraint("DistanceX", 81, 2, 72, 2, 1.24))
sketch3.addConstraint(Sketcher.Constraint("Distance", 81, 7.043))
sketch3.addConstraint(Sketcher.Constraint("DistanceX", 4, 2, 4, 1, 5.4457))
sketch3.addConstraint(Sketcher.Constraint("DistanceX", 21, 1, 21, 2, 5.8104))
sketch3.addConstraint(Sketcher.Constraint("DistanceX", 23, 2, 23, 1, 1.9085))
sketch3.addConstraint(Sketcher.Constraint("DistanceX", 25, 1, 25, 2, 1.9085))
sketch3.addConstraint(Sketcher.Constraint("DistanceX", 27, 2, 27, 1, 5.8104))
sketch3.addConstraint(Sketcher.Constraint("DistanceX", 29, 1, 29, 2, 1.9084))
sketch3.addConstraint(Sketcher.Constraint("DistanceX", 71, 1, 71, 2, 2.2852))
sketch3.addConstraint(Sketcher.Constraint("DistanceX", 74, 2, 74, 1, 2.1515))
sketch3.addConstraint(Sketcher.Constraint("DistanceX", 77, 2, 77, 1, 2.2853))
sketch3.addConstraint(Sketcher.Constraint("DistanceX", 80, 1, 80, 2, 2.1515))
sketch3.addConstraint(Sketcher.Constraint("DistanceY", 22, 1, 22, 2, 1.5316))
sketch3.addConstraint(Sketcher.Constraint("DistanceY", 26, 1, 26, 2, 1.5316))
sketch3.addConstraint(Sketcher.Constraint("DistanceY", 28, 2, 28, 1, 1.5316))
sketch3.addConstraint(Sketcher.Constraint("DistanceY", 30, 2, 30, 1, 11.9368))
sketch3.addConstraint(Sketcher.Constraint("DistanceY", 72, 2, -1, 1, 15.264))
sketch3.addConstraint(Sketcher.Constraint("DistanceX", -1, 1, 74, 2, 92.561))
sketch3.addConstraint(Sketcher.Constraint("DistanceX", -1, 1, 80, 2, 85.061))
sketch3.addConstraint(Sketcher.Constraint("DistanceX", 3, 2, 21, 2, 7.731))
sketch3.addConstraint(Sketcher.Constraint("DistanceX", 72, 2, 71, 2, 4.692))
sketch3.addConstraint(Sketcher.Constraint("DistanceY", 75, 2, 74, 2, 5.871))
sketch3.addConstraint(Sketcher.Constraint("DistanceX", 77, 2, 75, 2, 5.859))
sketch3.addConstraint(Sketcher.Constraint("DistanceX", 78, 2, 72, 2, 2.334))
sketch3.addConstraint(Sketcher.Constraint("Distance", 72, 8.9397))
sketch3.addConstraint(Sketcher.Constraint("Distance", 78, 8.8043))
pocket1 = doc.addObject("PartDesign::Pocket", "Pocket")
body.addObject(pocket1)
pocket1.Profile = sketch3
pocket1.Length = 4

doc.recompute()
